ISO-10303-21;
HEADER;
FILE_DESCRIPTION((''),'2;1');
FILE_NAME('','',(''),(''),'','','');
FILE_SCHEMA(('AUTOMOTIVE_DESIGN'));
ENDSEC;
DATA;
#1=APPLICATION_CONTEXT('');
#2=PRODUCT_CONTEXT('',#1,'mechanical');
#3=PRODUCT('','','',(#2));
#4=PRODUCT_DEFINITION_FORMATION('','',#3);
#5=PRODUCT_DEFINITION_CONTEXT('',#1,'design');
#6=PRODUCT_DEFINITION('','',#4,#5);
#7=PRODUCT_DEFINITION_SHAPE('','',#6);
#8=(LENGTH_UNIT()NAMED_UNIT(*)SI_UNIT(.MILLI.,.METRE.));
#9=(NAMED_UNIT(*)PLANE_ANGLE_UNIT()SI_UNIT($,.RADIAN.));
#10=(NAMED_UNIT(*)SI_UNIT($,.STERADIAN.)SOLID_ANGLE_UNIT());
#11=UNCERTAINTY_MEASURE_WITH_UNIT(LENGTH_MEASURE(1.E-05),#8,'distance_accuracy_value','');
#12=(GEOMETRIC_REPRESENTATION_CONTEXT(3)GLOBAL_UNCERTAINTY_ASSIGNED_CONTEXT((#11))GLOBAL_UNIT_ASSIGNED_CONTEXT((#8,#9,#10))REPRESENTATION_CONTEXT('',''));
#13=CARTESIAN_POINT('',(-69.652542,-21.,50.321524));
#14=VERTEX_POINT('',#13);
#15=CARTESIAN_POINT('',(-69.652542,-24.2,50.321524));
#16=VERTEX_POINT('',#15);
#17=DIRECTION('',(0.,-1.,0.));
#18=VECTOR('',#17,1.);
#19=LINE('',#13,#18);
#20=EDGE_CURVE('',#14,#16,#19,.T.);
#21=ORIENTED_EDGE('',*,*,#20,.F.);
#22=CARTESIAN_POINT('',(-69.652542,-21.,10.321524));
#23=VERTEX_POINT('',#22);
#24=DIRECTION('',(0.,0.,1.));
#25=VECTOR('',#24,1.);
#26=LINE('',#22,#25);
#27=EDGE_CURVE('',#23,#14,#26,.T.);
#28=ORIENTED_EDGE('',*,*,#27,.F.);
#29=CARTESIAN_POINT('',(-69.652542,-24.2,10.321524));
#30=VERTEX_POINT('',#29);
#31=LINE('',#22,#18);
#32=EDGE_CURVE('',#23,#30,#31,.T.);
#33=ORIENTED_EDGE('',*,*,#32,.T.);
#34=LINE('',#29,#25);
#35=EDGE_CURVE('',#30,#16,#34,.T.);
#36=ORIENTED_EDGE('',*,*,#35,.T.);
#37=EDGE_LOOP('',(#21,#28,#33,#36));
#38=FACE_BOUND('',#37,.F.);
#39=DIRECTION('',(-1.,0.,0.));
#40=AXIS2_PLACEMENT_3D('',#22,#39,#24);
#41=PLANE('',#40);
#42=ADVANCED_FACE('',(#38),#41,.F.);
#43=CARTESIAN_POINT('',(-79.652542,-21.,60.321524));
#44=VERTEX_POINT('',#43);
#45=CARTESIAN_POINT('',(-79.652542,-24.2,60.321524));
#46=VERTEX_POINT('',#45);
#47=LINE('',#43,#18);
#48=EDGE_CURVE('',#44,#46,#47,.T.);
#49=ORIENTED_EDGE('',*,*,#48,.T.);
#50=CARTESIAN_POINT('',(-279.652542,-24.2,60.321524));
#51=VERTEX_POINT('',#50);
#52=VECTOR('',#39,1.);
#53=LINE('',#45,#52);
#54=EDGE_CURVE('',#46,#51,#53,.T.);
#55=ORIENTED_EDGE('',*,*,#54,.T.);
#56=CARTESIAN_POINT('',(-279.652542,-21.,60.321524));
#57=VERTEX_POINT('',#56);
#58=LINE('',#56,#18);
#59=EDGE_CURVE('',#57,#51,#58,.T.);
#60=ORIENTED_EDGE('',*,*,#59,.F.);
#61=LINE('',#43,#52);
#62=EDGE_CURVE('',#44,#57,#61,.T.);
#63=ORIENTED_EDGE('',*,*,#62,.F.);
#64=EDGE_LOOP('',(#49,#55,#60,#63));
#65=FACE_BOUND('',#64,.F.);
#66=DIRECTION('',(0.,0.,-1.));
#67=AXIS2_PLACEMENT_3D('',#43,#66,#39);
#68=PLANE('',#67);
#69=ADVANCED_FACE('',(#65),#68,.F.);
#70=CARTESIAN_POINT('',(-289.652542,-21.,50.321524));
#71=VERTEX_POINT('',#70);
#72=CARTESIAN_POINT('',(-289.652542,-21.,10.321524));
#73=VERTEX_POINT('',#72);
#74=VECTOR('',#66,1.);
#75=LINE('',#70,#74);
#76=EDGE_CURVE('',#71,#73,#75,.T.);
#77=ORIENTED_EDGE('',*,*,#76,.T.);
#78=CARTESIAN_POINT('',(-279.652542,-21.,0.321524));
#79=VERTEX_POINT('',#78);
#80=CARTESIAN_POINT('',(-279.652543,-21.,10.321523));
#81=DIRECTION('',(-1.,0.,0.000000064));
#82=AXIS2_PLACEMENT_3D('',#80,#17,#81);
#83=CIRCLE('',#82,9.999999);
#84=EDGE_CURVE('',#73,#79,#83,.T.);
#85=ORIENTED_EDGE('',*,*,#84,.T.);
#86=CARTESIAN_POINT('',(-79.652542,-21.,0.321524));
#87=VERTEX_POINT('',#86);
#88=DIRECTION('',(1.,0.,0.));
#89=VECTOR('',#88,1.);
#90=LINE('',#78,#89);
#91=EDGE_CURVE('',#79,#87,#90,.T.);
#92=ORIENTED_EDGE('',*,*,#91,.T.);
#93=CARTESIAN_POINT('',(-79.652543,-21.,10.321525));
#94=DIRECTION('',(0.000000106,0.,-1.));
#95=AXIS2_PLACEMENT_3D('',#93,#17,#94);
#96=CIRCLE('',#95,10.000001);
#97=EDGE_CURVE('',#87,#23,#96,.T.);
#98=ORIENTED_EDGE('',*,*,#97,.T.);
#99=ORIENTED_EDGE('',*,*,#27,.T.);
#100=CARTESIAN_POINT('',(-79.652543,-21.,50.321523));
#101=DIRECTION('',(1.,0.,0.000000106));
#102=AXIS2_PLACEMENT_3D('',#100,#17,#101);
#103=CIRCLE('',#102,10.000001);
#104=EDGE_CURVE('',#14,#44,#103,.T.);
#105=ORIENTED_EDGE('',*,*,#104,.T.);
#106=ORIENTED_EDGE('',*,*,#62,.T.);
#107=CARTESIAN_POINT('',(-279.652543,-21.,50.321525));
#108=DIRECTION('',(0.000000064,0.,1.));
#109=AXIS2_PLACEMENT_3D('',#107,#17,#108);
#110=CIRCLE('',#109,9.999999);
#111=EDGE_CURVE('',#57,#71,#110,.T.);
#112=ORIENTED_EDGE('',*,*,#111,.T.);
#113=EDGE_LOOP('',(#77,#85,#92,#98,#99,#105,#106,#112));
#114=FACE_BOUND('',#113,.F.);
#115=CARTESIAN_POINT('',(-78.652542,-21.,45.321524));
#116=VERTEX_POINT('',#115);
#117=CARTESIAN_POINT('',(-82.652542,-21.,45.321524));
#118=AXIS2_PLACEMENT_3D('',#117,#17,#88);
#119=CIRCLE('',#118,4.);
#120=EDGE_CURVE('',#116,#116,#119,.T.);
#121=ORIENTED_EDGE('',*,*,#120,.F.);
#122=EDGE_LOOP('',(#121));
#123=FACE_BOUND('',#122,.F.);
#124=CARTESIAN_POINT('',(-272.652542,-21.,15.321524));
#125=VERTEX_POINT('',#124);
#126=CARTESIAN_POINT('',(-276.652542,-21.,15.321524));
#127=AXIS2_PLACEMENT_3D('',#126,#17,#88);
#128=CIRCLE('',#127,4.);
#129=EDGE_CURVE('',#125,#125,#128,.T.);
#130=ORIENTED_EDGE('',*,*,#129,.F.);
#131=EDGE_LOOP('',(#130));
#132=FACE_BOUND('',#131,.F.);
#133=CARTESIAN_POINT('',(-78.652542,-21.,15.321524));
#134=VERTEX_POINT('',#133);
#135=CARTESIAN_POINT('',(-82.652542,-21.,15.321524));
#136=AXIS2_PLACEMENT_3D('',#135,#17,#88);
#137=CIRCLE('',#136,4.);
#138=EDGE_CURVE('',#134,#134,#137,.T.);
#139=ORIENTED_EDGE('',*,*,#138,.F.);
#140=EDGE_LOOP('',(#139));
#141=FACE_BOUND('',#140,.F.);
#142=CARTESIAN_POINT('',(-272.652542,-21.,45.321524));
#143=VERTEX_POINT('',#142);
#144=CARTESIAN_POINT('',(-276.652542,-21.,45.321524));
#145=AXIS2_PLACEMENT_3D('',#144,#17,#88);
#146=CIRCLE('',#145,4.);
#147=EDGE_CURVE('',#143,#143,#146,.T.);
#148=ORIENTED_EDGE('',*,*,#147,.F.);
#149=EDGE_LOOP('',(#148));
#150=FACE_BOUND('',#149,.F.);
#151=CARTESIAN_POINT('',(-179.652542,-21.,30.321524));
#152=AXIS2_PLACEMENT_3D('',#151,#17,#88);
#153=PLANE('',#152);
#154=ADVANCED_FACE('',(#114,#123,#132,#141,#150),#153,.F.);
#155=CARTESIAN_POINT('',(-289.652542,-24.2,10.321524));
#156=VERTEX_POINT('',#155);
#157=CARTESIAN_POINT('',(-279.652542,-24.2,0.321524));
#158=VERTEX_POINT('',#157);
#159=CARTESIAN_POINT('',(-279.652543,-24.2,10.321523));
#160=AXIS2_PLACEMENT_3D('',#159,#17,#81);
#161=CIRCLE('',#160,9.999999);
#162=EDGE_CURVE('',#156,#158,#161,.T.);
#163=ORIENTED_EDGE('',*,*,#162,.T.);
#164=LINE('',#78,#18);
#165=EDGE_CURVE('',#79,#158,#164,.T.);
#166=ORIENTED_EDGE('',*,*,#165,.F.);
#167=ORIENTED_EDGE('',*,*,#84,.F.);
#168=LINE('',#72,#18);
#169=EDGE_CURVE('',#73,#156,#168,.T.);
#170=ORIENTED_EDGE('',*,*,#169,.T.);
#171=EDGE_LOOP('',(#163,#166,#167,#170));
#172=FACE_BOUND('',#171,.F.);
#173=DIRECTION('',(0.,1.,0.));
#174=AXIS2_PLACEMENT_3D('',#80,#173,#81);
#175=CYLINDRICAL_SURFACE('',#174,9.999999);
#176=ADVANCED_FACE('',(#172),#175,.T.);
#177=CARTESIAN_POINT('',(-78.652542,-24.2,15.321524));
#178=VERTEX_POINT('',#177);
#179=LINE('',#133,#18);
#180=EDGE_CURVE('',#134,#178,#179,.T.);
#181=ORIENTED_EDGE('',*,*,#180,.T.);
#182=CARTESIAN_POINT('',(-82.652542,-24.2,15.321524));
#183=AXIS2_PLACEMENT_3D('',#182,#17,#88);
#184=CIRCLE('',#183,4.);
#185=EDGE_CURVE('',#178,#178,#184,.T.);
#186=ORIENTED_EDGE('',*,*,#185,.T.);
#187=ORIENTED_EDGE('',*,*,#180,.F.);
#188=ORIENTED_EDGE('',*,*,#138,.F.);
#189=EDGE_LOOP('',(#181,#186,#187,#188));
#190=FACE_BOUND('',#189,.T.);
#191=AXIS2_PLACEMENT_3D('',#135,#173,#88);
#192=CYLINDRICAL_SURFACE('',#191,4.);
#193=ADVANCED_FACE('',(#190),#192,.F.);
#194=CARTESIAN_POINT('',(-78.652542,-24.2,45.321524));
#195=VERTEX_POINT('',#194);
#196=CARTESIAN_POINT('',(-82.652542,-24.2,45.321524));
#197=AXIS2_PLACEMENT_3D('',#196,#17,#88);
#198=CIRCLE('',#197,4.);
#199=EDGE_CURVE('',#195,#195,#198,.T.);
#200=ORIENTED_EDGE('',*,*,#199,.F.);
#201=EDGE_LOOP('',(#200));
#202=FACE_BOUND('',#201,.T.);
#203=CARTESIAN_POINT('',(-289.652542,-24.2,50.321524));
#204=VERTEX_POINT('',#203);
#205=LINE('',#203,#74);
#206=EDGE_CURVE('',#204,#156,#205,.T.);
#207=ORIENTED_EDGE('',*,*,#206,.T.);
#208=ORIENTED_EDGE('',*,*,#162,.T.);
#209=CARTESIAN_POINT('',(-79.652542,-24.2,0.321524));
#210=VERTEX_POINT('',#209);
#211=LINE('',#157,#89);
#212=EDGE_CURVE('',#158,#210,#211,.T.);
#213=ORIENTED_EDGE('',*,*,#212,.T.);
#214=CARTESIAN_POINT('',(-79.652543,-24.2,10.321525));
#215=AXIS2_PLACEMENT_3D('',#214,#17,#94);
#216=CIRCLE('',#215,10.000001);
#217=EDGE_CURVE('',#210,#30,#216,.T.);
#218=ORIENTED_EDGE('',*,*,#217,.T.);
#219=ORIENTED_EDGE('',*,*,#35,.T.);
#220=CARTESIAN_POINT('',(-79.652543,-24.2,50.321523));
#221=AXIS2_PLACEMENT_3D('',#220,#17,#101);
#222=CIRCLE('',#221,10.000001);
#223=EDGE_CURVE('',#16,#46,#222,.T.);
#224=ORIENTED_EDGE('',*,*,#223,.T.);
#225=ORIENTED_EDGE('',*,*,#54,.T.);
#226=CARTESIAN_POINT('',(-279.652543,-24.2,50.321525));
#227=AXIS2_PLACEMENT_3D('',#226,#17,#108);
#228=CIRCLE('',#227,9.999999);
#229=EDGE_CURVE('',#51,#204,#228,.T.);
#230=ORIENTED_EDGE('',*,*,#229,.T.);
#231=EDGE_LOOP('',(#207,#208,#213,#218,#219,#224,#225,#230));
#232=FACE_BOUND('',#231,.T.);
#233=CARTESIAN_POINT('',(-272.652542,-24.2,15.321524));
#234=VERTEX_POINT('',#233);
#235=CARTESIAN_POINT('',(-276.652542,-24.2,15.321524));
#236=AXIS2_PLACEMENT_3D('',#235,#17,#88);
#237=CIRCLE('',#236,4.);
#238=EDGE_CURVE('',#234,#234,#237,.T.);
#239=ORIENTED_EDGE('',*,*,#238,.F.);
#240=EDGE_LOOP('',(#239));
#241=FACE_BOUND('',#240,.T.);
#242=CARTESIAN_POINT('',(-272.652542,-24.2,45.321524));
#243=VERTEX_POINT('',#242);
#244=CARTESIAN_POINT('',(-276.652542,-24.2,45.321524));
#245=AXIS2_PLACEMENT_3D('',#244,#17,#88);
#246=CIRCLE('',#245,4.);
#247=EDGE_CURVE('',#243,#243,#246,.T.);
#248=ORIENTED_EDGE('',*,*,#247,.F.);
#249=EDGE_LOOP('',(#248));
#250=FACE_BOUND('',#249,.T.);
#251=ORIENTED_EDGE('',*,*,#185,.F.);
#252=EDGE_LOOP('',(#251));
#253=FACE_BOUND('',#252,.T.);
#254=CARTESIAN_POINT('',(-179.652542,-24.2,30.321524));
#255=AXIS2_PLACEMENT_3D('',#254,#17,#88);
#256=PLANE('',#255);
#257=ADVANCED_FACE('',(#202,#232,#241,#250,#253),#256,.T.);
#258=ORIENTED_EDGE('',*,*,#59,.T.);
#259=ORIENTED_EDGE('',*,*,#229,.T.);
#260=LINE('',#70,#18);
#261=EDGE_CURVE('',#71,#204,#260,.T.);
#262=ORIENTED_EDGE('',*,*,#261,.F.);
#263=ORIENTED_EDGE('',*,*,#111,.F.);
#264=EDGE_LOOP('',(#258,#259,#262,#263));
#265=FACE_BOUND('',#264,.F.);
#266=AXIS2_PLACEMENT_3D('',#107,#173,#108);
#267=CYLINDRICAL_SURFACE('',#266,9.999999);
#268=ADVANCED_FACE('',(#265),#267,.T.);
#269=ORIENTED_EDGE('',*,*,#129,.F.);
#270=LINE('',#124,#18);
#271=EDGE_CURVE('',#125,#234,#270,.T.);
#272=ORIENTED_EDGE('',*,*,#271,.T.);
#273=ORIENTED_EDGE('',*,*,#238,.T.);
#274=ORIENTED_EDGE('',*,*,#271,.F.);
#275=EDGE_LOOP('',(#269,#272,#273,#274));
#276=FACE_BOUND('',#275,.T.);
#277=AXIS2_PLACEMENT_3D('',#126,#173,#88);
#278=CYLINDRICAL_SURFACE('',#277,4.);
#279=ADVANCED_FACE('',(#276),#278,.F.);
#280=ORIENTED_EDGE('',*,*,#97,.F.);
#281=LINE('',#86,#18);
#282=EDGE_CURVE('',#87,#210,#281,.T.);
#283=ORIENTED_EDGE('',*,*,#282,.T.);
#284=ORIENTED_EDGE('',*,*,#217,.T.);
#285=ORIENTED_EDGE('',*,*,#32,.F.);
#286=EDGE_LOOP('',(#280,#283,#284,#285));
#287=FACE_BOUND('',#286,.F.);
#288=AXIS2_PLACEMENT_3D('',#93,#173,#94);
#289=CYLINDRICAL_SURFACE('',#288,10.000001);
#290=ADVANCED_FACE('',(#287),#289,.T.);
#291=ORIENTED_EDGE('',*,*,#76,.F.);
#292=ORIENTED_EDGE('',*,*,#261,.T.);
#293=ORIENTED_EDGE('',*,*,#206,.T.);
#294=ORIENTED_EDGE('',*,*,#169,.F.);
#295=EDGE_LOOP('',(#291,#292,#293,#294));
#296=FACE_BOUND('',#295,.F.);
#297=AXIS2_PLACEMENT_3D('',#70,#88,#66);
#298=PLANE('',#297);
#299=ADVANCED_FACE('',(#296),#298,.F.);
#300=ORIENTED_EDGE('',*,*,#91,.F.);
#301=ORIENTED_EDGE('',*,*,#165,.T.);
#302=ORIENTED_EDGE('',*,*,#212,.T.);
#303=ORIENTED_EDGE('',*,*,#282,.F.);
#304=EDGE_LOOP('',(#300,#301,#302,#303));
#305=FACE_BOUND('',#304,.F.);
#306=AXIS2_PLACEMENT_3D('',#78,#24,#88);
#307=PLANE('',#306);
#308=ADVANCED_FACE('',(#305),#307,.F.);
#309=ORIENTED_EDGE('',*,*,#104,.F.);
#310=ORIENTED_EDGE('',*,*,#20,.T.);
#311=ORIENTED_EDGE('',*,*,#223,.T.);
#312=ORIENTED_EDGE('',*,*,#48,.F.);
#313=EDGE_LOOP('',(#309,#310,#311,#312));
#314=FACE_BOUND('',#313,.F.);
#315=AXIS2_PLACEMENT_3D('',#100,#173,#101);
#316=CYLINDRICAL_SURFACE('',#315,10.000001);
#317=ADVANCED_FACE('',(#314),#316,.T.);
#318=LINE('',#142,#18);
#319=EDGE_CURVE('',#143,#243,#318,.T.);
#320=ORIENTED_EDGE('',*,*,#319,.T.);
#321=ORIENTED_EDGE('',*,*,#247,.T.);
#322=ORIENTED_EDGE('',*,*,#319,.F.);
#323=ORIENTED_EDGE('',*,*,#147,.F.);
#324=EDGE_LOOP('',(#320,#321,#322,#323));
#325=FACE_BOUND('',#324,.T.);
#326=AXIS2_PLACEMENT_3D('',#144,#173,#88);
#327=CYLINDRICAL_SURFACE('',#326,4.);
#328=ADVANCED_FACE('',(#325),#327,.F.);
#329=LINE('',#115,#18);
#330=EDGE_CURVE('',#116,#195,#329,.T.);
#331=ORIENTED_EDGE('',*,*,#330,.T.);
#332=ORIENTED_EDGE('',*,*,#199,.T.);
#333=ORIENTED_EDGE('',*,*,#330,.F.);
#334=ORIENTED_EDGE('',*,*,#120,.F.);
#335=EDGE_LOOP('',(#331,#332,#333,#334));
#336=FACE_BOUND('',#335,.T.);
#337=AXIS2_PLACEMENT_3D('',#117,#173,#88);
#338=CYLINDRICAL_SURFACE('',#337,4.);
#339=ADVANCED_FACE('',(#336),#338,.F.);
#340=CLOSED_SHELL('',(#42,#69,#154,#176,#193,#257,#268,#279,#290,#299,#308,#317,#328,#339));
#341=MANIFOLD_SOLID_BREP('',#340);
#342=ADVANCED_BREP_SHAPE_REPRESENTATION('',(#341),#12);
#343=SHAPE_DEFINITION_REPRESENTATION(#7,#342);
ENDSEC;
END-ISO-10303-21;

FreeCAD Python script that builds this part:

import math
import FreeCAD as App
import Part
import Sketcher

V = App.Vector

doc = App.newDocument("Part")
body = doc.addObject("PartDesign::Body", "Body")

# Sketch on XZ plane
sketch1 = body.newObject("Sketcher::SketchObject", "Sketch")
sketch1.AttachmentSupport = (doc.getObject("XZ_Plane"), [""])
sketch1.MapMode = "FlatFace"
sketch1.AttachmentOffset = App.Placement(V(0, 0, 21), App.Rotation())
sketch1.addGeometry(Part.ArcOfCircle(Part.Circle(V(-279.7, 50.3, 0), V(0, 0, 1), 10), math.radians(90), math.radians(180)), False)
sketch1.addGeometry(Part.LineSegment(V(-289.7, 50.3, 0), V(-289.7, 10.3, 0)), False)
sketch1.addGeometry(Part.ArcOfCircle(Part.Circle(V(-279.7, 10.3, 0), V(0, 0, 1), 10), math.radians(180), math.radians(270)), False)
sketch1.addGeometry(Part.LineSegment(V(-279.7, 0.3, 0), V(-79.7, 0.3, 0)), False)
sketch1.addGeometry(Part.ArcOfCircle(Part.Circle(V(-79.7, 10.3, 0), V(0, 0, 1), 10), math.radians(-90), math.radians(0)), False)
sketch1.addGeometry(Part.LineSegment(V(-69.7, 10.3, 0), V(-69.7, 50.3, 0)), False)
sketch1.addGeometry(Part.ArcOfCircle(Part.Circle(V(-79.7, 50.3, 0), V(0, 0, 1), 10), math.radians(0), math.radians(90)), False)
sketch1.addGeometry(Part.LineSegment(V(-79.7, 60.3, 0), V(-279.7, 60.3, 0)), False)
sketch1.addGeometry(Part.Circle(V(-276.7, 15.3, 0), V(0, 0, 1), 4), False)
sketch1.addGeometry(Part.Circle(V(-82.7, 15.3, 0), V(0, 0, 1), 4), False)
sketch1.addGeometry(Part.Circle(V(-276.7, 45.3, 0), V(0, 0, 1), 4), False)
sketch1.addGeometry(Part.Circle(V(-82.7, 45.3, 0), V(0, 0, 1), 4), False)
sketch1.addConstraint(Sketcher.Constraint("Tangent", 0, 2, 1, 1))
sketch1.addConstraint(Sketcher.Constraint("Tangent", 1, 2, 2, 1))
sketch1.addConstraint(Sketcher.Constraint("Tangent", 2, 2, 3, 1))
sketch1.addConstraint(Sketcher.Constraint("Tangent", 3, 2, 4, 1))
sketch1.addConstraint(Sketcher.Constraint("Tangent", 4, 2, 5, 1))
sketch1.addConstraint(Sketcher.Constraint("Tangent", 5, 2, 6, 1))
sketch1.addConstraint(Sketcher.Constraint("Tangent", 6, 2, 7, 1))
sketch1.addConstraint(Sketcher.Constraint("Tangent", 7, 2, 0, 1))
sketch1.addConstraint(Sketcher.Constraint("Vertical", 1))
sketch1.addConstraint(Sketcher.Constraint("Horizontal", 3))
sketch1.addConstraint(Sketcher.Constraint("Vertical", 5))
sketch1.addConstraint(Sketcher.Constraint("Horizontal", 7))
sketch1.addConstraint(Sketcher.Constraint("Equal", 0, 2))
sketch1.addConstraint(Sketcher.Constraint("Equal", 2, 4))
sketch1.addConstraint(Sketcher.Constraint("Equal", 4, 6))
sketch1.addConstraint(Sketcher.Constraint("Equal", 8, 9))
sketch1.addConstraint(Sketcher.Constraint("Equal", 9, 10))
sketch1.addConstraint(Sketcher.Constraint("Equal", 10, 11))
sketch1.addConstraint(Sketcher.Constraint("Horizontal", 8, 3, 9, 3))
sketch1.addConstraint(Sketcher.Constraint("Horizontal", 10, 3, 11, 3))
sketch1.addConstraint(Sketcher.Constraint("Vertical", 8, 3, 10, 3))
sketch1.addConstraint(Sketcher.Constraint("Vertical", 9, 3, 11, 3))
sketch1.addConstraint(Sketcher.Constraint("Diameter", 8, 8.0))
sketch1.addConstraint(Sketcher.Constraint("Radius", 0, 9.999999))
sketch1.addConstraint(Sketcher.Constraint("DistanceX", 3, 1, 3, 2, 200.0))
sketch1.addConstraint(Sketcher.Constraint("DistanceY", 1, 2, 1, 1, 40.0))
sketch1.addConstraint(Sketcher.Constraint("DistanceX", 2, 3, 8, 3, 3.000001))
sketch1.addConstraint(Sketcher.Constraint("DistanceY", 2, 3, 8, 3, 5.000001))
sketch1.addConstraint(Sketcher.Constraint("DistanceX", 9, 3, 4, 3, 2.999999))
sketch1.addConstraint(Sketcher.Constraint("DistanceY", 10, 3, 0, 3, 5.000001))
sketch1.addConstraint(Sketcher.Constraint("DistanceX", 8, 3, -1, 1, 276.652542))
sketch1.addConstraint(Sketcher.Constraint("DistanceY", -1, 1, 0, 3, 50.321525))
pad1 = body.newObject("PartDesign::Pad", "Pad")
pad1.Profile = sketch1
pad1.Length = 3.2

doc.recompute()
